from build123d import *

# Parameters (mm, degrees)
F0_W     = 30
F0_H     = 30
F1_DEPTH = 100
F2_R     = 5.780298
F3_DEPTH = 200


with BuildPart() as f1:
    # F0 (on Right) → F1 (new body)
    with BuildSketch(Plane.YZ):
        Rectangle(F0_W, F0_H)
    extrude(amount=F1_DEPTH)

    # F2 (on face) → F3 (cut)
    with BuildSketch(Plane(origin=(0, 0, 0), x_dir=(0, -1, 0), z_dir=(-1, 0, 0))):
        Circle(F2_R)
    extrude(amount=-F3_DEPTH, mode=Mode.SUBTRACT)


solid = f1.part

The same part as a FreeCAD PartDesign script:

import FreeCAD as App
import Part
import Sketcher

doc = App.newDocument("Part")
params = doc.addObject("Spreadsheet::Sheet", "Params")
for row, (alias, value) in enumerate([
    ("sketch1_width", "30 mm"),
    ("pad1_length", "100 mm"),
    ("pocket1_length", "200 mm"),
], start=1):
    params.set(f"A{row}", alias)
    params.set(f"B{row}", "=" + value)
    params.setAlias(f"B{row}", alias)

body = doc.addObject("PartDesign::Body", "Body")

# Sketch on YZ plane
sketch1 = doc.addObject("Sketcher::SketchObject", "Sketch")
body.addObject(sketch1)
sketch1.AttachmentSupport = (doc.YZ_Plane, [""])
sketch1.MapMode = "FlatFace"
sketch1.addGeometry([
    Part.LineSegment(App.Vector(-15, 15, 0), App.Vector(-15, -15, 0)),
    Part.LineSegment(App.Vector(-15, -15, 0), App.Vector(15, -15, 0)),
    Part.LineSegment(App.Vector(15, -15, 0), App.Vector(15, 15, 0)),
    Part.LineSegment(App.Vector(15, 15, 0), App.Vector(-15, 15, 0)),
], False)
sketch1.addConstraint([
    Sketcher.Constraint("Coincident", 0, 2, 1, 1),
    Sketcher.Constraint("Coincident", 1, 2, 2, 1),
    Sketcher.Constraint("Coincident", 2, 2, 3, 1),
    Sketcher.Constraint("Coincident", 3, 2, 0, 1),
    Sketcher.Constraint("Vertical", 0),
    Sketcher.Constraint("Horizontal", 1),
    Sketcher.Constraint("Vertical", 2),
    Sketcher.Constraint("Horizontal", 3),
    Sketcher.Constraint("Symmetric", 0, 2, 2, 2, -1, 1),
    Sketcher.Constraint("Equal", 3, 0),
    Sketcher.Constraint("DistanceX", 1, 1, 1, 2, 30.0),
])
sketch1.setExpression("Constraints[10]", "Params.sketch1_width")
pad1 = doc.addObject("PartDesign::Pad", "Pad")
body.addObject(pad1)
pad1.Profile = sketch1
pad1.setExpression("Length", "Params.pad1_length")

# Sketch on YZ plane
sketch2 = doc.addObject("Sketcher::SketchObject", "Sketch001")
body.addObject(sketch2)
sketch2.AttachmentSupport = (doc.YZ_Plane, [""])
sketch2.MapMode = "FlatFace"
sketch2.addGeometry(Part.Circle(App.Vector(0, 0, 0), App.Vector(0, 0, 1), 6), False)
sketch2.addConstraint([
    Sketcher.Constraint("Coincident", 0, 3, -1, 1),
    Sketcher.Constraint("Diameter", 0, 11.560596),
])
pocket1 = doc.addObject("PartDesign::Pocket", "Pocket")
body.addObject(pocket1)
pocket1.Profile = sketch2
pocket1.setExpression("Length", "Params.pocket1_length")
pocket1.Reversed = True

doc.recompute()
